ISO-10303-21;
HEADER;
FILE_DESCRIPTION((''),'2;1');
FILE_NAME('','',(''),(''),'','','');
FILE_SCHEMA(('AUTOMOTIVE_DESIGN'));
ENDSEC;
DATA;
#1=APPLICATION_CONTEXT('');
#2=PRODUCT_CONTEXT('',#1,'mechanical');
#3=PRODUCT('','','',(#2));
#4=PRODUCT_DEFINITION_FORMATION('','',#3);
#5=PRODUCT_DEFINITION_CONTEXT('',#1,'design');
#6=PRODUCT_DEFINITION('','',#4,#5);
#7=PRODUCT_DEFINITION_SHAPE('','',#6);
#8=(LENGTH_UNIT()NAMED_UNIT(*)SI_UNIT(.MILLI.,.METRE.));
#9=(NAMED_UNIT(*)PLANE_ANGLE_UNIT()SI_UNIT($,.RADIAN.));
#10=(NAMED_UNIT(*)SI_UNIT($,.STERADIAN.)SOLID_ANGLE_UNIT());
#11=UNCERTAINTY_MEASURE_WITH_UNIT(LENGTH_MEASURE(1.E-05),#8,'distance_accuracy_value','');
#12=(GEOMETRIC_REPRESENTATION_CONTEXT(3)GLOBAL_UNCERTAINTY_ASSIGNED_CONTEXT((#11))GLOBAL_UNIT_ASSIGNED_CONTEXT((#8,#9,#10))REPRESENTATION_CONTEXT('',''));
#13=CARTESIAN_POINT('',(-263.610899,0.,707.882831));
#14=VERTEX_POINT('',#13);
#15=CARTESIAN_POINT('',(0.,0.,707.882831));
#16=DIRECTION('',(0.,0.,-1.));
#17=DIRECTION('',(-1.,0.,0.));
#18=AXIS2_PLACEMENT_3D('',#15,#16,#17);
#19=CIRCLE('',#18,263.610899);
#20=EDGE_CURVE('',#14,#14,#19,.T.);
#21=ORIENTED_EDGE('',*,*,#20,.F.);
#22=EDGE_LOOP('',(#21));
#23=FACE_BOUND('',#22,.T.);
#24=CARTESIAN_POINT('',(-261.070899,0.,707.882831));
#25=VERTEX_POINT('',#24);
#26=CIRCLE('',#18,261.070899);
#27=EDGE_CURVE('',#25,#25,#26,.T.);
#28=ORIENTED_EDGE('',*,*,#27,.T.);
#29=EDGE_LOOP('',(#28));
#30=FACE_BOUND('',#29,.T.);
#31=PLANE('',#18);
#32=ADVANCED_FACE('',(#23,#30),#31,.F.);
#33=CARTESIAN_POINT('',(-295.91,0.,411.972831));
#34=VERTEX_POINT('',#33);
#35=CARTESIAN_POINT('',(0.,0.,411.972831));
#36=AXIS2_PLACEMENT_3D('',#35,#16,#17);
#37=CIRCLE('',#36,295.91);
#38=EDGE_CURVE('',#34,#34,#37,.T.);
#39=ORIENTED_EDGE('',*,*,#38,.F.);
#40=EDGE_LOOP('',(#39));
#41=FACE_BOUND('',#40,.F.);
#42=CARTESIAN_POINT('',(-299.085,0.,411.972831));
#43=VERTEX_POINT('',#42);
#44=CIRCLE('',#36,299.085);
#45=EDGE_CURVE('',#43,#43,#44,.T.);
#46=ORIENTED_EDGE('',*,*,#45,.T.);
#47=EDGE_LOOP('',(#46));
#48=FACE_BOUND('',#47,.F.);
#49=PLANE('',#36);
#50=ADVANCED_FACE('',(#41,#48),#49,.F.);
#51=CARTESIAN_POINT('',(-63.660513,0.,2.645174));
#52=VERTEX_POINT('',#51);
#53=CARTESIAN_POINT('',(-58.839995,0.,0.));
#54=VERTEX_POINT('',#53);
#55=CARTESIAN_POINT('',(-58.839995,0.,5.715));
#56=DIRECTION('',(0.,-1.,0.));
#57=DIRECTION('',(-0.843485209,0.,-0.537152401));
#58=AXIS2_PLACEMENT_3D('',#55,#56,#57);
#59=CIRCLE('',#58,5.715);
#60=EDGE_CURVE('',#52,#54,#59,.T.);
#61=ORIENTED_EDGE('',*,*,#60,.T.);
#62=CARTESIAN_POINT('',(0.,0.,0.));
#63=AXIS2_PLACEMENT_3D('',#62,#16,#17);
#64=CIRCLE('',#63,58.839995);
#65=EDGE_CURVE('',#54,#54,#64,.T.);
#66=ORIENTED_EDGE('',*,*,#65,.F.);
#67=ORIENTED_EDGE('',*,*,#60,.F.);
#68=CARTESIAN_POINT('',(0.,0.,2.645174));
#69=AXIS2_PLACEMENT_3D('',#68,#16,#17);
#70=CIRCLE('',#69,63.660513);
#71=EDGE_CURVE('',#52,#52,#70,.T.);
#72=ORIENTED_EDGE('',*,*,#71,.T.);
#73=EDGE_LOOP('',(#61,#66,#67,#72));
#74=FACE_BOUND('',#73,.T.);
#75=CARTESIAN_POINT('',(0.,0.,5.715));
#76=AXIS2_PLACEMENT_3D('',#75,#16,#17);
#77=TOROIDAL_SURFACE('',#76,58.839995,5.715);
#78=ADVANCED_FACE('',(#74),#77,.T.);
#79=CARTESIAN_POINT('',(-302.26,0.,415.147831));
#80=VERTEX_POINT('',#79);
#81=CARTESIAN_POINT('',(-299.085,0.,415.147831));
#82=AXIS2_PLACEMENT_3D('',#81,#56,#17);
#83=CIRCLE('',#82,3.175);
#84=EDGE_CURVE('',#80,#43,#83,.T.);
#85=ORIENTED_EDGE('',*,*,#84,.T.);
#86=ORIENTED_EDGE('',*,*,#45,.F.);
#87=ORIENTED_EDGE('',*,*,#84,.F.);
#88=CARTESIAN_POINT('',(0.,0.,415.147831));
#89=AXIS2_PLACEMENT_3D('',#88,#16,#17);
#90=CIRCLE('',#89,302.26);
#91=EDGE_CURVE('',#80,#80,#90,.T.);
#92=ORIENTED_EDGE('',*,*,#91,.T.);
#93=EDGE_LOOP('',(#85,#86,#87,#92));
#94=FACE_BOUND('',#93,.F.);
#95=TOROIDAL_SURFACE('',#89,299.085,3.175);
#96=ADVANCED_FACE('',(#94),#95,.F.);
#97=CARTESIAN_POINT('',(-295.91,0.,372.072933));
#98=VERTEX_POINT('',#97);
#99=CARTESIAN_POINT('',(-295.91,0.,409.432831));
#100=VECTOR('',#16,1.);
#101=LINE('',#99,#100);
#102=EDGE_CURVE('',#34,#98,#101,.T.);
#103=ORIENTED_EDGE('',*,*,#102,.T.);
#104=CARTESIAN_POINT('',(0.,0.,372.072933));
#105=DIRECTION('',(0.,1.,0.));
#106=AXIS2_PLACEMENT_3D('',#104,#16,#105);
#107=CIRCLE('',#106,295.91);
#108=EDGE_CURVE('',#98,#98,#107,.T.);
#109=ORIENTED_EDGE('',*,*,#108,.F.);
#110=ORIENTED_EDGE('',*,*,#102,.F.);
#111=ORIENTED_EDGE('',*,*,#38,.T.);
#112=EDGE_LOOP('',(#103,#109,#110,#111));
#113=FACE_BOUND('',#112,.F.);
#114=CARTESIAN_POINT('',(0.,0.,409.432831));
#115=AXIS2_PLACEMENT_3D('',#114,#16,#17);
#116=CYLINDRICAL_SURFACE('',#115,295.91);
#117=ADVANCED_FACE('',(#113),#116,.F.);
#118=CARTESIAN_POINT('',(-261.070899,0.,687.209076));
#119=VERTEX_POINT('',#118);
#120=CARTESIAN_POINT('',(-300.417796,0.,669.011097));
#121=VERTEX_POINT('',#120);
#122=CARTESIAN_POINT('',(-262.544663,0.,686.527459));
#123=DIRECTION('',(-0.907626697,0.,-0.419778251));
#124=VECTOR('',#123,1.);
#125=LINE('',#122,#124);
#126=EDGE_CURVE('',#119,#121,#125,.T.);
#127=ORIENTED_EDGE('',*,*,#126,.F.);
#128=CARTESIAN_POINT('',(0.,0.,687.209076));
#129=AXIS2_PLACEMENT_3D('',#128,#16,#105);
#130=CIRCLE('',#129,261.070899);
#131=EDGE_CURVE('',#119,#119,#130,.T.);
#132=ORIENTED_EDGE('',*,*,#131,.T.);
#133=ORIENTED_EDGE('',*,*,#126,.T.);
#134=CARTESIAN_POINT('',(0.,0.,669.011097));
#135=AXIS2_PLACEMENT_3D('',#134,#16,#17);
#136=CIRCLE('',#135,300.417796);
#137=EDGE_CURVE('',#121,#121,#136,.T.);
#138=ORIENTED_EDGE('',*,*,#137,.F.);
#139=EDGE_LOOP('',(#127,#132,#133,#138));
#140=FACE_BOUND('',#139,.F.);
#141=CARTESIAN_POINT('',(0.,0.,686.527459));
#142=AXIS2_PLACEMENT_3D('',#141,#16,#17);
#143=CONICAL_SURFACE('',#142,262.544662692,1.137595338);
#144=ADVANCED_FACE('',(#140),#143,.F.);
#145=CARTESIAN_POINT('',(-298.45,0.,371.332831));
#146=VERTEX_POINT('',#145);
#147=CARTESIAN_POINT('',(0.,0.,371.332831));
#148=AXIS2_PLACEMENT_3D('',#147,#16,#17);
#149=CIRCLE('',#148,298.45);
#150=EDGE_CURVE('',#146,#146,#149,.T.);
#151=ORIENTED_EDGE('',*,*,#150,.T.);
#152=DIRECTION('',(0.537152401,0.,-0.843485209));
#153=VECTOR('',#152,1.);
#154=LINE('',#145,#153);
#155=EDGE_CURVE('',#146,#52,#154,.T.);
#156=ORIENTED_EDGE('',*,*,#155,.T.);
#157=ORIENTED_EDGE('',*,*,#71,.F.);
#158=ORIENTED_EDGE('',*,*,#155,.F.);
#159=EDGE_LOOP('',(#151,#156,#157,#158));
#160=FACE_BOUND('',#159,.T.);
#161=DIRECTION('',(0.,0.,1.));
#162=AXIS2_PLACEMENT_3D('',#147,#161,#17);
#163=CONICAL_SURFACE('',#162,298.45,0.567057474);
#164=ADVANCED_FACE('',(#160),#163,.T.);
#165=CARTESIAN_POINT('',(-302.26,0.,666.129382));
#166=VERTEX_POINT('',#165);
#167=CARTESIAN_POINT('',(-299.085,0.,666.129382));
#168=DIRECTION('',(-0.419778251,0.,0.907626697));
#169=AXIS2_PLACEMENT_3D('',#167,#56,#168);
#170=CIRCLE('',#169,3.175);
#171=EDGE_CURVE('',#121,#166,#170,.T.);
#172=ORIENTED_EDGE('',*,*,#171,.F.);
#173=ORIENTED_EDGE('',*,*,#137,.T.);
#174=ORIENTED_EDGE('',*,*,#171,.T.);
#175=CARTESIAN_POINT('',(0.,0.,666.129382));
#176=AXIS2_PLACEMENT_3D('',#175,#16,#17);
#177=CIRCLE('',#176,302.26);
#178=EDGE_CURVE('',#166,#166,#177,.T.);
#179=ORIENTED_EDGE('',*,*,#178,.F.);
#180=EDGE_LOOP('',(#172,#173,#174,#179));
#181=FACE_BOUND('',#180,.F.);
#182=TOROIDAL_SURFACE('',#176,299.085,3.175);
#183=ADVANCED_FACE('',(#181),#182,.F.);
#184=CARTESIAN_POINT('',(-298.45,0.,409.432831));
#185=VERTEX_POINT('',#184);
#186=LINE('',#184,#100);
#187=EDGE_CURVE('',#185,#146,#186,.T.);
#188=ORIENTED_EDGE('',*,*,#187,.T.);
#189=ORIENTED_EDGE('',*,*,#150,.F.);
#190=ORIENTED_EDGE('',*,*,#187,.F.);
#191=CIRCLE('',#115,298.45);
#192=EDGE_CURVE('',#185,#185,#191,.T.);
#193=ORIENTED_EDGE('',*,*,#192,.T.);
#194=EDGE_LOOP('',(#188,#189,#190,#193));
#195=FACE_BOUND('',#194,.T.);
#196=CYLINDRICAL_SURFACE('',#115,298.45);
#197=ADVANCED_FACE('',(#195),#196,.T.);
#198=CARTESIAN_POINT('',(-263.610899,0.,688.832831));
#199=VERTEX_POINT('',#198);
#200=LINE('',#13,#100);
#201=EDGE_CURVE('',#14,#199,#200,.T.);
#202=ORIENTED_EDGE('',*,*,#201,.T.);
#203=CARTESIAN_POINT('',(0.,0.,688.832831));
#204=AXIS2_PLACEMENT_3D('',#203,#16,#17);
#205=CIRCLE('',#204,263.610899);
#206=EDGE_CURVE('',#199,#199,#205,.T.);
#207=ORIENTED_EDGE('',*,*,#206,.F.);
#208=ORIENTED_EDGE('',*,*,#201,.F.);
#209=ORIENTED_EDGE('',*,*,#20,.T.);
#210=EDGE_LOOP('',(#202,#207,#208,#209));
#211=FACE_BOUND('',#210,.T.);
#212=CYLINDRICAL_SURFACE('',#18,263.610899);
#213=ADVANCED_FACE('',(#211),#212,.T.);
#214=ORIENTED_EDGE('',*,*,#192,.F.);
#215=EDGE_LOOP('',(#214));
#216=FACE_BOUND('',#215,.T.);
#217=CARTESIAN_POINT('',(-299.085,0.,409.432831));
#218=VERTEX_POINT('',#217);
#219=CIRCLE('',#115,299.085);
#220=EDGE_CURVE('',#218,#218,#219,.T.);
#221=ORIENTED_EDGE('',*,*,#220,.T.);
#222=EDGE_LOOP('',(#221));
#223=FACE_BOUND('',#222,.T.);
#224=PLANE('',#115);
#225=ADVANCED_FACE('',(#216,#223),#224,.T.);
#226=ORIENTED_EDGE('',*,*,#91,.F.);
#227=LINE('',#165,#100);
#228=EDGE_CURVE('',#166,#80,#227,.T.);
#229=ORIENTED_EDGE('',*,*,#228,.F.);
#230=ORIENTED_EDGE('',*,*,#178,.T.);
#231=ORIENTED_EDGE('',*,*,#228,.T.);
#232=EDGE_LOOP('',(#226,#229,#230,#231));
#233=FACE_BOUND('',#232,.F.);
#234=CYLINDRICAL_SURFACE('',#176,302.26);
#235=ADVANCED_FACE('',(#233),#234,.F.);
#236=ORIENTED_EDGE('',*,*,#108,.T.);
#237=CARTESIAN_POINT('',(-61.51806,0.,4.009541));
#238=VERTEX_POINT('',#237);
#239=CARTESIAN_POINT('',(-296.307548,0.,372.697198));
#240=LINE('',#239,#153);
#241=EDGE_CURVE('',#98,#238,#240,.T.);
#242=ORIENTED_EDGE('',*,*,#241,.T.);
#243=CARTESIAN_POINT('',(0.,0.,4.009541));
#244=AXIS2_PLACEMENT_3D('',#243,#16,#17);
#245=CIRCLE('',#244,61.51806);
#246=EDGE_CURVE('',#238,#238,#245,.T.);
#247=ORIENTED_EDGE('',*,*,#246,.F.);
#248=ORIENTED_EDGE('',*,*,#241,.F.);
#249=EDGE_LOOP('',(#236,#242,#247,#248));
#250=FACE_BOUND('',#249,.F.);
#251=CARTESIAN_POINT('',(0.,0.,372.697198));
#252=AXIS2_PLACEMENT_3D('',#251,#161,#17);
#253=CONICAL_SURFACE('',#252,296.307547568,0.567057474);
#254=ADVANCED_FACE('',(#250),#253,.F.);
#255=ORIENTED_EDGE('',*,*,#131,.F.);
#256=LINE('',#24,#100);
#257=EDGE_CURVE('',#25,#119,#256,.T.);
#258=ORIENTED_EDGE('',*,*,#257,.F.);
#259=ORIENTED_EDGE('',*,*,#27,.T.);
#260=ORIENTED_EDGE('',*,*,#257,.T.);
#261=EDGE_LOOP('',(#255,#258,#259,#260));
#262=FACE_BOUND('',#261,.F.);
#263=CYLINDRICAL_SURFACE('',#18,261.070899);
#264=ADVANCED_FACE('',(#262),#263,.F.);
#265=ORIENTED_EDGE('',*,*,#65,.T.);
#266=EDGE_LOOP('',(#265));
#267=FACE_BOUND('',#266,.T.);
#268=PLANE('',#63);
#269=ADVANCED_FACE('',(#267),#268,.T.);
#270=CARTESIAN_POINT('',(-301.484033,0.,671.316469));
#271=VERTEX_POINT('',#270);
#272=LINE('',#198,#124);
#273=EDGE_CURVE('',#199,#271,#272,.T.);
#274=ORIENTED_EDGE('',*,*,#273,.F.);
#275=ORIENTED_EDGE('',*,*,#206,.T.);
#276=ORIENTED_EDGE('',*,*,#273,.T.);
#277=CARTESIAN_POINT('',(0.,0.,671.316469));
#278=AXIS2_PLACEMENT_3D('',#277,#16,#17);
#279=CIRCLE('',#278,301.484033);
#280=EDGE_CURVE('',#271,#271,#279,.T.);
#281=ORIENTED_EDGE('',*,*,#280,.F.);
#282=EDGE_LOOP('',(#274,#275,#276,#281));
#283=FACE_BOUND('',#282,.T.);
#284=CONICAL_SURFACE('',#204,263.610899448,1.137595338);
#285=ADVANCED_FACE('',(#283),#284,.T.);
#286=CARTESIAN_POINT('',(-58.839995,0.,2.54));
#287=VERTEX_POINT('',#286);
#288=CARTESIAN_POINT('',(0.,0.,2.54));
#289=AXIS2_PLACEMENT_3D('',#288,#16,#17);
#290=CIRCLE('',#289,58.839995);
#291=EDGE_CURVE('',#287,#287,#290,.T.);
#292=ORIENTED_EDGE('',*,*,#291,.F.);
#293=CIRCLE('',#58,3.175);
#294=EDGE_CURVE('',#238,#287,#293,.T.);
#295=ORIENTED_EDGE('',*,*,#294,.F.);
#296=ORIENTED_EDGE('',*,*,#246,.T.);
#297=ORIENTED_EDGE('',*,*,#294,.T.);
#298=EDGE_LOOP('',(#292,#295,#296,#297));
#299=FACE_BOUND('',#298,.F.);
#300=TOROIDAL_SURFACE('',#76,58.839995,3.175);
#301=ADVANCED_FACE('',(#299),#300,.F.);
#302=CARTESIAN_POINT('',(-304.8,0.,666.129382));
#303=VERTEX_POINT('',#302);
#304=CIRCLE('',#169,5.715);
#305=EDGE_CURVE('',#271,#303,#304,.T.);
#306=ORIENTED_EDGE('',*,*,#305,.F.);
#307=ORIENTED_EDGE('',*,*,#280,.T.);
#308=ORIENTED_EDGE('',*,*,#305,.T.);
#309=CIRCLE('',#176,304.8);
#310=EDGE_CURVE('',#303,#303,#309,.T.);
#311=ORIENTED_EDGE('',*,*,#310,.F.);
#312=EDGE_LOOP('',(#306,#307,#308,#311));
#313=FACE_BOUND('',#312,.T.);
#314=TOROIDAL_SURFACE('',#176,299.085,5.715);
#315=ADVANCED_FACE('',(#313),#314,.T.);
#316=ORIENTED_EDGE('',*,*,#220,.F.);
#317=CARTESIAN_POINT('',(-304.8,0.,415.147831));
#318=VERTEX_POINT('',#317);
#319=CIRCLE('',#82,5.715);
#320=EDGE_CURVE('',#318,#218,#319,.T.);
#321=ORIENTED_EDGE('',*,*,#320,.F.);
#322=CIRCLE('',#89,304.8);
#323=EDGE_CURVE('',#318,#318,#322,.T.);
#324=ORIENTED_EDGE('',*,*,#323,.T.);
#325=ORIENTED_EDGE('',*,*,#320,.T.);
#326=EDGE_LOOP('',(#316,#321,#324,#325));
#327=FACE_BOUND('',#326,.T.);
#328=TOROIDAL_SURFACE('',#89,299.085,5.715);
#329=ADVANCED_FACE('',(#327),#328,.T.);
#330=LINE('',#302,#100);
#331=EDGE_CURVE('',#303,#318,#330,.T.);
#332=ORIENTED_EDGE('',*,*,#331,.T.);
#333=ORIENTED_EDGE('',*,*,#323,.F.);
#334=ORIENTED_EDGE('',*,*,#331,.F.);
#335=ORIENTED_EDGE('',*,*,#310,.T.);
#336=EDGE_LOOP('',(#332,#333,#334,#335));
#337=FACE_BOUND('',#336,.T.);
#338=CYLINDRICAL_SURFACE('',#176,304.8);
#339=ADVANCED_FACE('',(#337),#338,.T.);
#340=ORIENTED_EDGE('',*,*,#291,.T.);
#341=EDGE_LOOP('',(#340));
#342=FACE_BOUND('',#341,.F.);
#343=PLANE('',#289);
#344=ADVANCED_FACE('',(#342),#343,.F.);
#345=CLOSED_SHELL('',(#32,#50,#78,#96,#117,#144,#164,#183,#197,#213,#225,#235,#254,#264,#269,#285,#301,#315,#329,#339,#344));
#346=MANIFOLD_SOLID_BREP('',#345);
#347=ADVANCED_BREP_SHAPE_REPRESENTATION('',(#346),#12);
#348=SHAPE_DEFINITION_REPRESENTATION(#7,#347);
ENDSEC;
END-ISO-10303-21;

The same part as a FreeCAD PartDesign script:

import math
import FreeCAD as App
import Part
import Sketcher
Q = App.Units.Quantity


def faces_at(feature, points):
    """Names of the faces that lie closest to the given points."""
    faces = feature.Shape.Faces
    near = lambda p: min(range(len(faces)), key=lambda i: faces[i].distToShape(Part.Vertex(*p))[0])
    return sorted({f"Face{near(p) + 1}" for p in points})

doc = App.newDocument("Part")
body = doc.addObject("PartDesign::Body", "Body")

sketch1 = body.newObject("Sketcher::SketchObject", "Sketch")
sketch1.AttachmentSupport = (doc.getObject("XZ_Plane"), [""])
sketch1.MapMode = "FlatFace"
sketch1.addGeometry([
    Part.LineSegment(App.Vector(-58.8, 0, 0), App.Vector(0, 0, 0)),
    Part.LineSegment(App.Vector(0, 0, 0), App.Vector(0, 707.9, 0)),
    Part.LineSegment(App.Vector(0, 707.9, 0), App.Vector(-263.6, 707.9, 0)),
    Part.LineSegment(App.Vector(-263.6, 707.9, 0), App.Vector(-263.6, 688.8, 0)),
    Part.LineSegment(App.Vector(-263.6, 688.8, 0), App.Vector(-301.5, 671.3, 0)),
    Part.ArcOfCircle(Part.Circle(App.Vector(-299.1, 666.1, 0), App.Vector(0, 0, 1), 5.7), math.radians(115), math.radians(180)),
    Part.LineSegment(App.Vector(-304.8, 666.1, 0), App.Vector(-304.8, 415.1, 0)),
    Part.ArcOfCircle(Part.Circle(App.Vector(-299.1, 415.1, 0), App.Vector(0, 0, 1), 5.7), math.radians(180), math.radians(270)),
    Part.LineSegment(App.Vector(-299.1, 409.4, 0), App.Vector(-298.4, 409.4, 0)),
    Part.LineSegment(App.Vector(-298.4, 409.4, 0), App.Vector(-298.4, 371.3, 0)),
    Part.LineSegment(App.Vector(-298.4, 371.3, 0), App.Vector(-63.7, 2.6, 0)),
    Part.ArcOfCircle(Part.Circle(App.Vector(-58.8, 5.7, 0), App.Vector(0, 0, 1), 5.7), math.radians(-148), math.radians(-90)),
], False)
sketch1.addConstraint([
    Sketcher.Constraint("Coincident", 0, 2, 1, 1),
    Sketcher.Constraint("Coincident", 1, 2, 2, 1),
    Sketcher.Constraint("Coincident", 2, 2, 3, 1),
    Sketcher.Constraint("Coincident", 3, 2, 4, 1),
    Sketcher.Constraint("Tangent", 4, 2, 5, 1),
    Sketcher.Constraint("Tangent", 5, 2, 6, 1),
    Sketcher.Constraint("Tangent", 6, 2, 7, 1),
    Sketcher.Constraint("Tangent", 7, 2, 8, 1),
    Sketcher.Constraint("Coincident", 8, 2, 9, 1),
    Sketcher.Constraint("Coincident", 9, 2, 10, 1),
    Sketcher.Constraint("Tangent", 10, 2, 11, 1),
    Sketcher.Constraint("Tangent", 11, 2, 0, 1),
    Sketcher.Constraint("Horizontal", 0),
    Sketcher.Constraint("Vertical", 1),
    Sketcher.Constraint("Horizontal", 2),
    Sketcher.Constraint("Vertical", 3),
    Sketcher.Constraint("Vertical", 6),
    Sketcher.Constraint("Horizontal", 8),
    Sketcher.Constraint("Vertical", 9),
    Sketcher.Constraint("Coincident", 0, 2, -1, 1),
    Sketcher.Constraint("Equal", 5, 7),
    Sketcher.Constraint("Equal", 7, 11),
    Sketcher.Constraint("DistanceY", 9, 2, 9, 1, Q("1.5 in")),
    Sketcher.Constraint("DistanceX", 5, 2, -1, 1, Q("12 in")),
    Sketcher.Constraint("Radius", 5, Q("0.225 in")),
    Sketcher.Constraint("DistanceY", 3, 2, 3, 1, Q("0.75 in")),
    Sketcher.Constraint("DistanceX", 8, 1, 8, 2, Q("0.025 in")),
    Sketcher.Constraint("Angle", 10, Q("-57.51 deg")),
    Sketcher.Constraint("DistanceY", 7, 3, 1, 2, Q("11.525 in")),
    Sketcher.Constraint("DistanceX", 2, 2, 2, 1, 263.610899),
    Sketcher.Constraint("DistanceY", 1, 1, 1, 2, 707.882831),
    Sketcher.Constraint("DistanceY", 6, 2, 6, 1, 250.981552),
])
revolution = body.newObject("PartDesign::Revolution", "Revolution")
revolution.Profile = sketch1
revolution.ReferenceAxis = (sketch1, ["V_Axis"])
revolution.Angle = 360
doc.recompute()

thickness = body.newObject("PartDesign::Thickness", "Thickness")
thickness.Base = (revolution, faces_at(revolution, [(0, 0, 707.883)]))
thickness.Value = Q("0.1 in")
thickness.Reversed = True
thickness.Join = "Intersection"

doc.recompute()
